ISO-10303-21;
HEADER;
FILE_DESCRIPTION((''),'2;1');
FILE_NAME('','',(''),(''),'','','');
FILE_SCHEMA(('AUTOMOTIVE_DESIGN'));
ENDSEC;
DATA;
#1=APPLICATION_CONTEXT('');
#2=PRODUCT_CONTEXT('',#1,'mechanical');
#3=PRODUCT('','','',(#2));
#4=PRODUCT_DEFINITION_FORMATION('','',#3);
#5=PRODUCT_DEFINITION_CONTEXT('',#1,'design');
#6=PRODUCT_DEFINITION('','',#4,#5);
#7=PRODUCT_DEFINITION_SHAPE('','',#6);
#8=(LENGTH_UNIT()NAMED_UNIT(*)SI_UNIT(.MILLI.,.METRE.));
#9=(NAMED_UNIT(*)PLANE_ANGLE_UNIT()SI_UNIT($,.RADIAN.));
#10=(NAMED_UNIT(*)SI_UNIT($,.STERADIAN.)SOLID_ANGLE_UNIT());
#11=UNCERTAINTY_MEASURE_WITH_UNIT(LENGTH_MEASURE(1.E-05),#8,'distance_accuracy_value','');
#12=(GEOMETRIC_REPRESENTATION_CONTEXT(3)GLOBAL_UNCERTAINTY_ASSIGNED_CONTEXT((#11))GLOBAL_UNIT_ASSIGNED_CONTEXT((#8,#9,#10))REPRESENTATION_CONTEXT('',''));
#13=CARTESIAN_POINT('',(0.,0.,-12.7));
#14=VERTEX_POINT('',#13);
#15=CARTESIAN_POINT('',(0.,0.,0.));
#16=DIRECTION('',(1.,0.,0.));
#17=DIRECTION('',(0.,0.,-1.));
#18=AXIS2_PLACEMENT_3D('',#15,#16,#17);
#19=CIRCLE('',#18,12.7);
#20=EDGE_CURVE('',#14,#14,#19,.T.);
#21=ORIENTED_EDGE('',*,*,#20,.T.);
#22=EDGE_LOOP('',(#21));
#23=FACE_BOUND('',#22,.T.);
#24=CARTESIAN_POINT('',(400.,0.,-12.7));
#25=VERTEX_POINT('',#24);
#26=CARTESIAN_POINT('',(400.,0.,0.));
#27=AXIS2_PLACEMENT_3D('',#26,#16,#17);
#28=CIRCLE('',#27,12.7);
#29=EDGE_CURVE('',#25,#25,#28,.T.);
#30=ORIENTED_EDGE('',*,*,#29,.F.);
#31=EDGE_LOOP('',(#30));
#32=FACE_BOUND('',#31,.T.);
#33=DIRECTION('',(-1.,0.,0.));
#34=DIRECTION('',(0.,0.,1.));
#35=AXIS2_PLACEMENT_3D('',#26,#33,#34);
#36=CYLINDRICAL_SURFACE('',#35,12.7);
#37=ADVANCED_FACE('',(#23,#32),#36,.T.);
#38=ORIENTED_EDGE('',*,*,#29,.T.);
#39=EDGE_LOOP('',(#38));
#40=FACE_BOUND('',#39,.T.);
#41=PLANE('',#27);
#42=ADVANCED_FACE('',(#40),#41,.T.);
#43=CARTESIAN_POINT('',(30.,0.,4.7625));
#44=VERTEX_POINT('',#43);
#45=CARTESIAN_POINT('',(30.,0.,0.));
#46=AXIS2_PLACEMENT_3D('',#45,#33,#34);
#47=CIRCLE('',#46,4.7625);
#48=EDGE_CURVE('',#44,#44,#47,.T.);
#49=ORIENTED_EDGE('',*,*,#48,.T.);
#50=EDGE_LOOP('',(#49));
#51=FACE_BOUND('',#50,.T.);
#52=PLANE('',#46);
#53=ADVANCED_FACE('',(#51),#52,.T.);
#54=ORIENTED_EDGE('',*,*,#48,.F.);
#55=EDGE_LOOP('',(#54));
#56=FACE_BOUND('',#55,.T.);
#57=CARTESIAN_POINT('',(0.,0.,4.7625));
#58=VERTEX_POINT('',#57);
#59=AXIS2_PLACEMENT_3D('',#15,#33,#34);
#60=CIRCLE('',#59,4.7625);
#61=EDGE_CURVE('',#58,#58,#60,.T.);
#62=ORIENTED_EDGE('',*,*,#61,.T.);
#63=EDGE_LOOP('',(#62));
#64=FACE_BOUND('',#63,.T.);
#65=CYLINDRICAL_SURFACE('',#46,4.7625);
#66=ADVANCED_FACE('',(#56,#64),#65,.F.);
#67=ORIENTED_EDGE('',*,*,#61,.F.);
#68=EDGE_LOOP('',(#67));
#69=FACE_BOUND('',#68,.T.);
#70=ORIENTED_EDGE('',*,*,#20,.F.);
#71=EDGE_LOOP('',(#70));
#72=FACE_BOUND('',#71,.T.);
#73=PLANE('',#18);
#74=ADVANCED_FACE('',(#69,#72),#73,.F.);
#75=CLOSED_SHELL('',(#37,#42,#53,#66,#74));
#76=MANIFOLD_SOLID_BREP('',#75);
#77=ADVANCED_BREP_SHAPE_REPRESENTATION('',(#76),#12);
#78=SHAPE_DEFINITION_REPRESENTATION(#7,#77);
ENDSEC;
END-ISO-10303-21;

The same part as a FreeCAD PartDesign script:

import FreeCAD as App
import Part
import Sketcher

V = App.Vector
Q = App.Units.Quantity

doc = App.newDocument("Part")
body = doc.addObject("PartDesign::Body", "Body")

# Sketch on YZ plane
sketch1 = body.newObject("Sketcher::SketchObject", "Sketch")
sketch1.AttachmentSupport = (doc.getObject("YZ_Plane"), [""])
sketch1.MapMode = "FlatFace"
sketch1.addGeometry(Part.Circle(V(0, 0, 0), V(0, 0, 1), 13), False)
sketch1.addConstraint(Sketcher.Constraint("Coincident", 0, 3, -1, 1))
sketch1.addConstraint(Sketcher.Constraint("Diameter", 0, Q("25.4 mm")))
pad1 = body.newObject("PartDesign::Pad", "Pad")
pad1.Profile = sketch1
pad1.Length = 400

# Sketch on YZ plane
sketch2 = body.newObject("Sketcher::SketchObject", "Sketch001")
sketch2.AttachmentSupport = (doc.getObject("YZ_Plane"), [""])
sketch2.MapMode = "FlatFace"
sketch2.addGeometry(Part.Circle(V(0, 0, 0), V(0, 0, 1), 4.8), False)
sketch2.addConstraint(Sketcher.Constraint("Coincident", 0, 3, -1, 1))
sketch2.addConstraint(Sketcher.Constraint("Diameter", 0, Q("9.525 mm")))
pocket1 = body.newObject("PartDesign::Pocket", "Pocket")
pocket1.Profile = sketch2
pocket1.Length = 30
pocket1.Reversed = True

doc.recompute()
